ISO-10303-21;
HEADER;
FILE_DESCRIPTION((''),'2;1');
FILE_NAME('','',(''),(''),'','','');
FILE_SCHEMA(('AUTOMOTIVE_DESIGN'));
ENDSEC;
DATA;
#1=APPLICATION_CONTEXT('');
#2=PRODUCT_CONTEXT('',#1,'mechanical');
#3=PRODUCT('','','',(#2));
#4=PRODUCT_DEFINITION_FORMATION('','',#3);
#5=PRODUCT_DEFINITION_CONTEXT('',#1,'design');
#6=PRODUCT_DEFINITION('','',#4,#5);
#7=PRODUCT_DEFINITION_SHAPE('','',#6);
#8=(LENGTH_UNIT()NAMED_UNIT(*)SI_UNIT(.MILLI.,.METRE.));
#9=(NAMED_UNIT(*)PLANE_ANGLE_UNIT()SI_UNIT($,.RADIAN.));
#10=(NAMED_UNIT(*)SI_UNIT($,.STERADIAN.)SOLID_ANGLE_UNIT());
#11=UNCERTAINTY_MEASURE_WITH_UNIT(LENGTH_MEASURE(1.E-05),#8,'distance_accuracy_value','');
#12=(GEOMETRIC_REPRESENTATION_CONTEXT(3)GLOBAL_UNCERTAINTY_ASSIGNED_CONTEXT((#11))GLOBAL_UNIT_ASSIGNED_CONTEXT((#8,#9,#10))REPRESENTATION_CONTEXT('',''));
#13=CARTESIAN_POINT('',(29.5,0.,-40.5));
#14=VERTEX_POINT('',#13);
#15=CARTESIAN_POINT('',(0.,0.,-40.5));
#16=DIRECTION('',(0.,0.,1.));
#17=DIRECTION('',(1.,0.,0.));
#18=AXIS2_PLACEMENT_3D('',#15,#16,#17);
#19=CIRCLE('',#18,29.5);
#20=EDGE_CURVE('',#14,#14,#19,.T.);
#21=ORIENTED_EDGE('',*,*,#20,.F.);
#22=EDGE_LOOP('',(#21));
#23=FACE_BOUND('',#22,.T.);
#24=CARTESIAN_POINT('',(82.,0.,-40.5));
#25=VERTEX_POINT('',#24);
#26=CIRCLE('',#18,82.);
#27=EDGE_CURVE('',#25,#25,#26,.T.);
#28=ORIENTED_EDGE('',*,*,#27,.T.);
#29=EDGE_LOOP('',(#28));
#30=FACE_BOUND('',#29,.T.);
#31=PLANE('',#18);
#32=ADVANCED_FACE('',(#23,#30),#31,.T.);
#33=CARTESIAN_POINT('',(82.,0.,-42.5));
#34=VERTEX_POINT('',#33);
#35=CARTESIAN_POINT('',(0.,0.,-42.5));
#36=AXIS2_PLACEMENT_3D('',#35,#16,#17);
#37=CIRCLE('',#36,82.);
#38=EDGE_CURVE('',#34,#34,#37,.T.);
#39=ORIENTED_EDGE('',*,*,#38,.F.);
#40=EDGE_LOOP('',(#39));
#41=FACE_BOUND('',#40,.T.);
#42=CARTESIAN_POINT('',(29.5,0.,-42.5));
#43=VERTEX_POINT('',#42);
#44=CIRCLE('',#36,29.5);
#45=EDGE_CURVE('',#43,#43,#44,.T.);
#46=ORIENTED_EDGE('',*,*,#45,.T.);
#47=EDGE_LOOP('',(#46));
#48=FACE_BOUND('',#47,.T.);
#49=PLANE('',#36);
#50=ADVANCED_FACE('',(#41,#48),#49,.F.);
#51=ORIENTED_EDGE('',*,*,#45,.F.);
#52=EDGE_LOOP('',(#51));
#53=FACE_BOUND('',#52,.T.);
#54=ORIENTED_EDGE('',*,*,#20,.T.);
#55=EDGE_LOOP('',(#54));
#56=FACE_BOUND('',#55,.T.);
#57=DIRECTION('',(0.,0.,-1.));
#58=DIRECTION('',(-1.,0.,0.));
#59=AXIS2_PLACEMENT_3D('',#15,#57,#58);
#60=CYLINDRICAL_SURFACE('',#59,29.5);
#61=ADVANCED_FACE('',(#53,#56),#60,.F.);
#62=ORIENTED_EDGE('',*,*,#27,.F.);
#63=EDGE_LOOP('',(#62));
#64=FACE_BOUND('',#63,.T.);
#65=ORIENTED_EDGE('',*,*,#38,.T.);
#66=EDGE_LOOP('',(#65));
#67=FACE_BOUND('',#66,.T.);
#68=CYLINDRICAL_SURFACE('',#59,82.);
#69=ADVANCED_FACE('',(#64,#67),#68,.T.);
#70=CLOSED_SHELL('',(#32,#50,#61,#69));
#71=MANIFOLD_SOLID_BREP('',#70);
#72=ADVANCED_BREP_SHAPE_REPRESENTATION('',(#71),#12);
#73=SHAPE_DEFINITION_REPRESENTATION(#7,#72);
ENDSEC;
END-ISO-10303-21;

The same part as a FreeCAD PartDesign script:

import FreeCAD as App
import Part
import Sketcher

V = App.Vector
Q = App.Units.Quantity

doc = App.newDocument("Part")
body = doc.addObject("PartDesign::Body", "Body")

# Sketch on XY plane
sketch1 = body.newObject("Sketcher::SketchObject", "Sketch")
sketch1.AttachmentSupport = (doc.getObject("XY_Plane"), [""])
sketch1.MapMode = "FlatFace"
sketch1.AttachmentOffset = App.Placement(V(0, 0, -42.5), App.Rotation())
sketch1.addGeometry([
    Part.Circle(V(0, 0, 0), V(0, 0, 1), 82),
    Part.Circle(V(0, 0, 0), V(0, 0, 1), 30),
], False)
sketch1.addConstraint([
    Sketcher.Constraint("Coincident", 0, 3, -1, 1),
    Sketcher.Constraint("Coincident", 1, 3, -1, 1),
    Sketcher.Constraint("Diameter", 0, Q("164 mm")),
    Sketcher.Constraint("Diameter", 1, Q("59 mm")),
])
pad1 = body.newObject("PartDesign::Pad", "Pad")
pad1.Profile = sketch1
pad1.Length = 2

doc.recompute()
